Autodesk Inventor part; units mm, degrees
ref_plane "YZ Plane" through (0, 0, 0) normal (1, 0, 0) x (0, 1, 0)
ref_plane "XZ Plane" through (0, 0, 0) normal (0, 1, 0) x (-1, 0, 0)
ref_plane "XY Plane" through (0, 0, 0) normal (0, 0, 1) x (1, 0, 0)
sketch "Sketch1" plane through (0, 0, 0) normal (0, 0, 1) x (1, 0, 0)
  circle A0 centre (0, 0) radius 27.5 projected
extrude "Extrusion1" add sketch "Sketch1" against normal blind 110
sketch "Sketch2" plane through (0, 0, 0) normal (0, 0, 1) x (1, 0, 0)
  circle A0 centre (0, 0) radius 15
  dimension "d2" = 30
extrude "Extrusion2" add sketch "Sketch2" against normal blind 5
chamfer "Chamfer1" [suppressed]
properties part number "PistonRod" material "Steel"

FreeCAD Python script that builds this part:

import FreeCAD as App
import Part
import Sketcher

doc = App.newDocument("Part")
body = doc.addObject("PartDesign::Body", "Body")

sketch1 = body.newObject("Sketcher::SketchObject", "Sketch")
sketch1.AttachmentSupport = (doc.getObject("XY_Plane"), [""])
sketch1.MapMode = "FlatFace"
sketch1.addGeometry(Part.Circle(App.Vector(0, 0, 0), App.Vector(0, 0, 1), 27.5), False)
sketch1.addConstraint([
    Sketcher.Constraint("Coincident", 0, 3, -1, 1),
    Sketcher.Constraint("Diameter", 0, 55.0),
])
pad1 = body.newObject("PartDesign::Pad", "Pad")
pad1.Profile = sketch1
pad1.Length = 110
pad1.Reversed = True

sketch2 = body.newObject("Sketcher::SketchObject", "Sketch001")
sketch2.AttachmentSupport = (doc.getObject("XY_Plane"), [""])
sketch2.MapMode = "FlatFace"
sketch2.addGeometry(Part.Circle(App.Vector(0, 0, 0), App.Vector(0, 0, 1), 15), False)
sketch2.addConstraint([
    Sketcher.Constraint("Coincident", 0, 3, -1, 1),
    Sketcher.Constraint("Diameter", 0, 30.0),
])
pad2 = body.newObject("PartDesign::Pad", "Pad001")
pad2.Profile = sketch2
pad2.Length = 5
pad2.Reversed = True

doc.recompute()
